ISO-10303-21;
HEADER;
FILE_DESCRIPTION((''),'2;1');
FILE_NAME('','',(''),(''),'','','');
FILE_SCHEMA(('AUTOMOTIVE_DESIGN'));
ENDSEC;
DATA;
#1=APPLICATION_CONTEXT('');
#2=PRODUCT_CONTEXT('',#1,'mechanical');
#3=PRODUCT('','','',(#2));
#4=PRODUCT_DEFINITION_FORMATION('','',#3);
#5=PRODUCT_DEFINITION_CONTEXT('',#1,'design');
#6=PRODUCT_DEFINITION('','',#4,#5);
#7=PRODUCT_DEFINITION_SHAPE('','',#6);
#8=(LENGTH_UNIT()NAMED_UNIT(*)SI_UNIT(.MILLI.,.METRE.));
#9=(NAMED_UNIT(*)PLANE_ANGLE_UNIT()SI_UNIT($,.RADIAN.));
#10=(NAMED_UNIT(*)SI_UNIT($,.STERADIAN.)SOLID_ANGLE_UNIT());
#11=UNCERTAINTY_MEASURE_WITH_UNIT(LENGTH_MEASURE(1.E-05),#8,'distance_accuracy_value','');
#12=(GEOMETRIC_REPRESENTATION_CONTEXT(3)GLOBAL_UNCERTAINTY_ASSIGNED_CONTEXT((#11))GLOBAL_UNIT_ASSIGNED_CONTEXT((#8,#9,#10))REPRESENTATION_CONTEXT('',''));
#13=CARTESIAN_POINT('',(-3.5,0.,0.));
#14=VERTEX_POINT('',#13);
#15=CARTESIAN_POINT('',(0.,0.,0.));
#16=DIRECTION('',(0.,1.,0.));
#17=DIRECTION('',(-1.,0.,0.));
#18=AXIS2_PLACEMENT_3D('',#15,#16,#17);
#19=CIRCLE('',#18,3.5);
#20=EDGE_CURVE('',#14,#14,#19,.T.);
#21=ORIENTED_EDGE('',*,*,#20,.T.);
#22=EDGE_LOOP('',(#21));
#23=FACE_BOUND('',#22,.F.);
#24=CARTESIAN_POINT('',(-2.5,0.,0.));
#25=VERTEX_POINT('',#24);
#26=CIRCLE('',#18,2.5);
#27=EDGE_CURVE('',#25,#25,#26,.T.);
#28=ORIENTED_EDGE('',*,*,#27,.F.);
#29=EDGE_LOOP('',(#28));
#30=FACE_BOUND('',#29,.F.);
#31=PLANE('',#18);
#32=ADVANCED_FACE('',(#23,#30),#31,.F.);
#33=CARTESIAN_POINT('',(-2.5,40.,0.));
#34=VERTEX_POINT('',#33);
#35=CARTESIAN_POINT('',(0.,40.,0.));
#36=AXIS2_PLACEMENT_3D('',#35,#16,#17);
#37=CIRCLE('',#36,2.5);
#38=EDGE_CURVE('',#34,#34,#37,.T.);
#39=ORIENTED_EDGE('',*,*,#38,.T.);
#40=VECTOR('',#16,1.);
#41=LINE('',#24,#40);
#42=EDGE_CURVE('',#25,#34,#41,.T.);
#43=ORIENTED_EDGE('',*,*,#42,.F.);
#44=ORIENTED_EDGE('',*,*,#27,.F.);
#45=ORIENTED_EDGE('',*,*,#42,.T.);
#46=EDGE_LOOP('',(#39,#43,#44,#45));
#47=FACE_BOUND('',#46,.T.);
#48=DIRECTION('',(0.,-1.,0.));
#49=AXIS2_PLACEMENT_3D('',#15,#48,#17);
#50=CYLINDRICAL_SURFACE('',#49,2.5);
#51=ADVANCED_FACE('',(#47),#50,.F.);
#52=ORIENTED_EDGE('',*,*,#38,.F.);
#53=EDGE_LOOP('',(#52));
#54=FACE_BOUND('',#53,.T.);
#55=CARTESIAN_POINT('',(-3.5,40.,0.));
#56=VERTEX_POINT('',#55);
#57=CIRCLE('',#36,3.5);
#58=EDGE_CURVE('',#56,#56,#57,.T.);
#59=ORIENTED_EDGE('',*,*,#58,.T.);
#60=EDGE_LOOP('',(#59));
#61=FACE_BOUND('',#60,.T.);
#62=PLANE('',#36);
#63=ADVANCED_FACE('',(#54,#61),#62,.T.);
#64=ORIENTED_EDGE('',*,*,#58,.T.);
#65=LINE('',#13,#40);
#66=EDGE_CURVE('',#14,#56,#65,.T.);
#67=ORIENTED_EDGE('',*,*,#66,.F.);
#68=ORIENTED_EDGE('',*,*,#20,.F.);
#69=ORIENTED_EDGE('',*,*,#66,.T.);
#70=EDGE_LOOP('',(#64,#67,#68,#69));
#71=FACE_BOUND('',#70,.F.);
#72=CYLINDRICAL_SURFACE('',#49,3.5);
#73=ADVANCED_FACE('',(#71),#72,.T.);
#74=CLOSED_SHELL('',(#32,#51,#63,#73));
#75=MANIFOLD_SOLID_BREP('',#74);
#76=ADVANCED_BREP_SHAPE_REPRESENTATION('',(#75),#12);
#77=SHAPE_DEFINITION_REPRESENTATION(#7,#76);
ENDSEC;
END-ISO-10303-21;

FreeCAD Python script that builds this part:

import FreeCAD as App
import Part
import Sketcher

V = App.Vector
Q = App.Units.Quantity

doc = App.newDocument("Part")
body = doc.addObject("PartDesign::Body", "Body")

sketch1 = body.newObject("Sketcher::SketchObject", "Sketch")
sketch1.AttachmentSupport = (doc.getObject("XZ_Plane"), [""])
sketch1.MapMode = "FlatFace"
sketch1.addGeometry([
    Part.Circle(V(0, 0, 0), V(0, 0, 1), 3.5),
    Part.Circle(V(0, 0, 0), V(0, 0, 1), 2.5),
], False)
sketch1.addConstraint([
    Sketcher.Constraint("Coincident", 0, 3, -1, 1),
    Sketcher.Constraint("Coincident", 1, 3, -1, 1),
    Sketcher.Constraint("Diameter", 0, Q("7 mm")),
    Sketcher.Constraint("Diameter", 1, Q("5 mm")),
])
pad1 = body.newObject("PartDesign::Pad", "Pad")
pad1.Profile = sketch1
pad1.Length = 40
pad1.Reversed = True

doc.recompute()
